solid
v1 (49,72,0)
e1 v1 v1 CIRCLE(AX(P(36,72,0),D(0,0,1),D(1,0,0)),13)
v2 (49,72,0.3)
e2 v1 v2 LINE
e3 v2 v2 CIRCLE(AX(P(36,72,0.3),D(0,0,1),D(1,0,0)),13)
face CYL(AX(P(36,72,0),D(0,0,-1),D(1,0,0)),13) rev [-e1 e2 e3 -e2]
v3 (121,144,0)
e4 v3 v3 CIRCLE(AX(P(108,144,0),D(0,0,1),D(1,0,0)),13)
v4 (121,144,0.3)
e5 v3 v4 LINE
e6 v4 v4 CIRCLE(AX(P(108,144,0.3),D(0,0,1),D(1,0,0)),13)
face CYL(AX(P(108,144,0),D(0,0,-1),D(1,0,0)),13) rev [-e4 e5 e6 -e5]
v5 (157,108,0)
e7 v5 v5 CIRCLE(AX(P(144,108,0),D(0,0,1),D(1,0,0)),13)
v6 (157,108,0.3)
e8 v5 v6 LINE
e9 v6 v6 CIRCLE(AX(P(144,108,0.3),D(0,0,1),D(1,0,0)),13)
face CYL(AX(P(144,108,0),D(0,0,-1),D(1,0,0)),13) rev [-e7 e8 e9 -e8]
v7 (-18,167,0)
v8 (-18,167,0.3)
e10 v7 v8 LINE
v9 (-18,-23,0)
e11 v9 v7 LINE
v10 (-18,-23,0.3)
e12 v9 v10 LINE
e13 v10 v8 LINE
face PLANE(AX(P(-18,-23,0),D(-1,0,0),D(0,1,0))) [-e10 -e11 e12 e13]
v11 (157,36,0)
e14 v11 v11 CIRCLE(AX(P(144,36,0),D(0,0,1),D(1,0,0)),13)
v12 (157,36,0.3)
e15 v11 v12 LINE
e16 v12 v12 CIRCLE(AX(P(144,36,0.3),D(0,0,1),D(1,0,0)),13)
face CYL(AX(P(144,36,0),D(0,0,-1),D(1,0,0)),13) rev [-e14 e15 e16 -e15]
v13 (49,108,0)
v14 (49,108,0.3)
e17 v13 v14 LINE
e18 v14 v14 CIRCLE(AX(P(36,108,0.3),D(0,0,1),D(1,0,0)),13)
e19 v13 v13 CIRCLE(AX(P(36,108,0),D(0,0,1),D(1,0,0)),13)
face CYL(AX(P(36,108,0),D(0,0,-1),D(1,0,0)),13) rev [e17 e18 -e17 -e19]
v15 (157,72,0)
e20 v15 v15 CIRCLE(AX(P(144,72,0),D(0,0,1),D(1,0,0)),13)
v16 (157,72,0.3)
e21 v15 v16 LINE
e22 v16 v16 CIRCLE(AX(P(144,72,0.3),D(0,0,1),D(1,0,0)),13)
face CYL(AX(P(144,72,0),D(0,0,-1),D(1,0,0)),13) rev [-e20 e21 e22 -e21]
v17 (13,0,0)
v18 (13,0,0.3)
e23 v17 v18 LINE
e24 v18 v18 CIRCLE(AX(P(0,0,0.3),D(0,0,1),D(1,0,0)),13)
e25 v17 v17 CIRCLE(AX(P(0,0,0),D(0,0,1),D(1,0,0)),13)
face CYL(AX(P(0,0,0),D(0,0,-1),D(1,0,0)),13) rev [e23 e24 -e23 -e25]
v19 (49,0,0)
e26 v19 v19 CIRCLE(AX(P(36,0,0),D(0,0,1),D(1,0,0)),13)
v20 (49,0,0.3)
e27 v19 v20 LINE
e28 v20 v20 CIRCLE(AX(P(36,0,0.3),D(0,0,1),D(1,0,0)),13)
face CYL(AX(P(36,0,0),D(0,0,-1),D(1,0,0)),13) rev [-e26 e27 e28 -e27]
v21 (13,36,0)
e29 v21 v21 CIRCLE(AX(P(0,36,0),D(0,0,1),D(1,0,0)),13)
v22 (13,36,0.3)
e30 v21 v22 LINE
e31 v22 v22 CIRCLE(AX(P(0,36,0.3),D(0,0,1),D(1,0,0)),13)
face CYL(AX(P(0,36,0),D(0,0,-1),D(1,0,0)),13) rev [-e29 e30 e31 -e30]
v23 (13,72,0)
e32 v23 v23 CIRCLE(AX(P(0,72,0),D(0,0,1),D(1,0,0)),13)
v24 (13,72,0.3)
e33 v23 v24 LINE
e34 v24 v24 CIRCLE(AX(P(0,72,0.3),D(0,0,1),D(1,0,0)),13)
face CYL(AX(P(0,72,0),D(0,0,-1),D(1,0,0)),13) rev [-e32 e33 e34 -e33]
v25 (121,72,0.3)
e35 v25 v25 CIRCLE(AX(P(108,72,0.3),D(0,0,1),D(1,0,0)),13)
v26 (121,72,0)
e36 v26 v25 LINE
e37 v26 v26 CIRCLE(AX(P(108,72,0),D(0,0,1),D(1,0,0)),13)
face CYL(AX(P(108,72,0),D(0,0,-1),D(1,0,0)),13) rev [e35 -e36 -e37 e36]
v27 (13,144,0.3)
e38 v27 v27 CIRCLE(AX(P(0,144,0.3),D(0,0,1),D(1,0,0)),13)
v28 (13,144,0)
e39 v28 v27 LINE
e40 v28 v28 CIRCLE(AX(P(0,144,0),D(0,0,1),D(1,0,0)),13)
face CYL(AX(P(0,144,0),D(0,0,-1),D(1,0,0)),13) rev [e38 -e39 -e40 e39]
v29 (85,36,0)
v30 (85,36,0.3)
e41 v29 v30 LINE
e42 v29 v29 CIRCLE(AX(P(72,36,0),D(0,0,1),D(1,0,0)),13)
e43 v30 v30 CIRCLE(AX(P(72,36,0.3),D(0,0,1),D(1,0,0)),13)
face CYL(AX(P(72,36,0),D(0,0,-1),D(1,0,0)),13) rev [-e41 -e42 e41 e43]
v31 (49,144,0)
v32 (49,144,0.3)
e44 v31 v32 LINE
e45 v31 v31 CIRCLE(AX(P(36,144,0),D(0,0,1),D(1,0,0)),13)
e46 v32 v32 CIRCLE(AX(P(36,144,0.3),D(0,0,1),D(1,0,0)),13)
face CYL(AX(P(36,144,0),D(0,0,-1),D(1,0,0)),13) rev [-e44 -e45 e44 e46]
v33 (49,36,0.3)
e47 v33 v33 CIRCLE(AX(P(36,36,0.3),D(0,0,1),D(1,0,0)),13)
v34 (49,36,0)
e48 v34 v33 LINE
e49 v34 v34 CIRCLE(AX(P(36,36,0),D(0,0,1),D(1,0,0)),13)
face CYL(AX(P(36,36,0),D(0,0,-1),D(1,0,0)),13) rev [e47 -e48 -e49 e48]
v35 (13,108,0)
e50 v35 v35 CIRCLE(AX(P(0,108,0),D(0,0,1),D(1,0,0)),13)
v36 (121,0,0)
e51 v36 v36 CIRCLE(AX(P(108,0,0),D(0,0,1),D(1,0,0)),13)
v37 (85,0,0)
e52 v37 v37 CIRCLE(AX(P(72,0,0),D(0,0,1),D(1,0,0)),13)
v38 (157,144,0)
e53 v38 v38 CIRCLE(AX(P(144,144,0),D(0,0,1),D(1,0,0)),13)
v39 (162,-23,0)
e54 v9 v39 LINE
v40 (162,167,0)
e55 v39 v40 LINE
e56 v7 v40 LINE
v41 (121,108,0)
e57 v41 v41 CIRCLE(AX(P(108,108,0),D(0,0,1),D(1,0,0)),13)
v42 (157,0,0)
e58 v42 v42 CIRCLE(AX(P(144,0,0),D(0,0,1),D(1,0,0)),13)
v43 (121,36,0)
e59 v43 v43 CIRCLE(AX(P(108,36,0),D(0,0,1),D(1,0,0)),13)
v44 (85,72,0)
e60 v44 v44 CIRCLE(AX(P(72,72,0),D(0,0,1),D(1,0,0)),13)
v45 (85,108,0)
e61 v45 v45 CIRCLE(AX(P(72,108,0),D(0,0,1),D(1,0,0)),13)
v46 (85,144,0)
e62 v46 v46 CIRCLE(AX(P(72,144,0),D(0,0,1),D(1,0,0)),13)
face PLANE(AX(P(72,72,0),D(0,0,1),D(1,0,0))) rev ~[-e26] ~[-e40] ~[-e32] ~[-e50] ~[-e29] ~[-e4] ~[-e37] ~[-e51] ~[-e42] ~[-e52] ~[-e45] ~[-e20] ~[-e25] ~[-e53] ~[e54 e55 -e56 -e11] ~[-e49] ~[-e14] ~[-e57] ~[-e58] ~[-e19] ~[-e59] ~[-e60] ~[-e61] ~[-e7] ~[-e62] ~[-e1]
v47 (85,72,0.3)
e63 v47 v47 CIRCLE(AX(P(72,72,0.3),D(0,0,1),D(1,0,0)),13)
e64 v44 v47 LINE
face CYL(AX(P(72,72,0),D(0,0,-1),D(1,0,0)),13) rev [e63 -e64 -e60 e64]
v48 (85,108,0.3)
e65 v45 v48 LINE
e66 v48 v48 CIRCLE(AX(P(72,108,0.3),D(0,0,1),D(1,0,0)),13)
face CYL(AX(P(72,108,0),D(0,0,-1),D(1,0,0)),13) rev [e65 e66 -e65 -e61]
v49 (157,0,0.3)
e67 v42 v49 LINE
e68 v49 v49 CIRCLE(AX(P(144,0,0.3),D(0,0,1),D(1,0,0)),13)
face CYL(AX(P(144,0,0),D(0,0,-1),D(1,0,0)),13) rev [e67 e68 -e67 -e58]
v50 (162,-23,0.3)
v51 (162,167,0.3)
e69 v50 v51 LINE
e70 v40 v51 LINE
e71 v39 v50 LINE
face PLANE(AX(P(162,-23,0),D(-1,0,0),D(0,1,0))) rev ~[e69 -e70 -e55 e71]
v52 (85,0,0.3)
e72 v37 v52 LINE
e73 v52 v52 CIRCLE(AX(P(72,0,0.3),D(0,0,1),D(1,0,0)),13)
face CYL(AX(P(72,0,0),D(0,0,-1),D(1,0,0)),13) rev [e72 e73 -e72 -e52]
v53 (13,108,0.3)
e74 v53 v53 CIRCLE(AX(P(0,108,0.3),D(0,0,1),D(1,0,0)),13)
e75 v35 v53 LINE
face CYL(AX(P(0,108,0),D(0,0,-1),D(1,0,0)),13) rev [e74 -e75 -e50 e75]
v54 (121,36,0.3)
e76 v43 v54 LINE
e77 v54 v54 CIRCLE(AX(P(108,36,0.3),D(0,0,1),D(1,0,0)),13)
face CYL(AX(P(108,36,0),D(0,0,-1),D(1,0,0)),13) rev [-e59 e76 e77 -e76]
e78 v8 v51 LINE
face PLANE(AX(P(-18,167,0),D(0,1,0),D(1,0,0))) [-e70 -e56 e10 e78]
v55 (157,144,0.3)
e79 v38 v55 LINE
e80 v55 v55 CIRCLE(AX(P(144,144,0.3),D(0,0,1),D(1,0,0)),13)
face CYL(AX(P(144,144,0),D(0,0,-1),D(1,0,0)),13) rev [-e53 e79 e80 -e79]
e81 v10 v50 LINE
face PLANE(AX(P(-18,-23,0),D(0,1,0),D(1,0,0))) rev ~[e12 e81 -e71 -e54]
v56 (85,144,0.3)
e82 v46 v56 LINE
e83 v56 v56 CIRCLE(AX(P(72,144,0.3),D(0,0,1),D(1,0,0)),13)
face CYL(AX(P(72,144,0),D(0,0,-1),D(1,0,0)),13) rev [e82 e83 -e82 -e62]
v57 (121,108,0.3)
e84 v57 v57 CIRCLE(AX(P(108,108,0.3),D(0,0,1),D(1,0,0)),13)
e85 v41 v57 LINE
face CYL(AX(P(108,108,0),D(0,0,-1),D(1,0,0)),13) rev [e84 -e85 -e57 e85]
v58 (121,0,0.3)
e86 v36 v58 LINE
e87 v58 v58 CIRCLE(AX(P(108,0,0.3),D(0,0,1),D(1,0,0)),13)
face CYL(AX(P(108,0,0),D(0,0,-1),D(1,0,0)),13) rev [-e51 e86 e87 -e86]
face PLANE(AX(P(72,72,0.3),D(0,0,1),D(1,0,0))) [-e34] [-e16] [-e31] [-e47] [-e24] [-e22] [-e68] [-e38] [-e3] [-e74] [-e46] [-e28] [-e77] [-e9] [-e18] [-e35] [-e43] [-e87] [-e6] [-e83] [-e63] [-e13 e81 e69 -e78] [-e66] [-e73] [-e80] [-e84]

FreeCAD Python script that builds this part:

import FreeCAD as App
import Part
import Sketcher

doc = App.newDocument("Part")
body = doc.addObject("PartDesign::Body", "Body")

# Sketch on XY plane
sketch1 = body.newObject("Sketcher::SketchObject", "Sketch")
sketch1.AttachmentSupport = (doc.getObject("XY_Plane"), [""])
sketch1.MapMode = "FlatFace"
sketch1.addGeometry([
    Part.LineSegment(App.Vector(-18, 167, 0), App.Vector(-18, -23, 0)),  # 0
    Part.LineSegment(App.Vector(-18, -23, 0), App.Vector(162, -23, 0)),  # 1
    Part.LineSegment(App.Vector(162, -23, 0), App.Vector(162, 167, 0)),  # 2
    Part.LineSegment(App.Vector(162, 167, 0), App.Vector(-18, 167, 0)),  # 3
    Part.Circle(App.Vector(0, 0, 0), App.Vector(0, 0, 1), 13),  # 4
    Part.Circle(App.Vector(36, 0, 0), App.Vector(0, 0, 1), 13),  # 5
    Part.Circle(App.Vector(0, 36, 0), App.Vector(0, 0, 1), 13),  # 6
    Part.Circle(App.Vector(36, 36, 0), App.Vector(0, 0, 1), 13),  # 7
    Part.Circle(App.Vector(72, 0, 0), App.Vector(0, 0, 1), 13),  # 8
    Part.Circle(App.Vector(108, 0, 0), App.Vector(0, 0, 1), 13),  # 9
    Part.Circle(App.Vector(144, 0, 0), App.Vector(0, 0, 1), 13),  # 10
    Part.Circle(App.Vector(72, 36, 0), App.Vector(0, 0, 1), 13),  # 11
    Part.Circle(App.Vector(108, 36, 0), App.Vector(0, 0, 1), 13),  # 12
    Part.Circle(App.Vector(144, 36, 0), App.Vector(0, 0, 1), 13),  # 13
    Part.Circle(App.Vector(0, 72, 0), App.Vector(0, 0, 1), 13),  # 14
    Part.Circle(App.Vector(0, 108, 0), App.Vector(0, 0, 1), 13),  # 15
    Part.Circle(App.Vector(36, 72, 0), App.Vector(0, 0, 1), 13),  # 16
    Part.Circle(App.Vector(36, 108, 0), App.Vector(0, 0, 1), 13),  # 17
    Part.Circle(App.Vector(0, 144, 0), App.Vector(0, 0, 1), 13),  # 18
    Part.Circle(App.Vector(36, 144, 0), App.Vector(0, 0, 1), 13),  # 19
    Part.Circle(App.Vector(72, 72, 0), App.Vector(0, 0, 1), 13),  # 20
    Part.Circle(App.Vector(108, 72, 0), App.Vector(0, 0, 1), 13),  # 21
    Part.Circle(App.Vector(72, 108, 0), App.Vector(0, 0, 1), 13),  # 22
    Part.Circle(App.Vector(108, 108, 0), App.Vector(0, 0, 1), 13),  # 23
    Part.Circle(App.Vector(144, 72, 0), App.Vector(0, 0, 1), 13),  # 24
    Part.Circle(App.Vector(144, 108, 0), App.Vector(0, 0, 1), 13),  # 25
    Part.Circle(App.Vector(72, 144, 0), App.Vector(0, 0, 1), 13),  # 26
    Part.Circle(App.Vector(108, 144, 0), App.Vector(0, 0, 1), 13),  # 27
    Part.Circle(App.Vector(144, 144, 0), App.Vector(0, 0, 1), 13),  # 28
], False)
sketch1.addConstraint([
    Sketcher.Constraint("Coincident", 0, 2, 1, 1),
    Sketcher.Constraint("Coincident", 1, 2, 2, 1),
    Sketcher.Constraint("Coincident", 2, 2, 3, 1),
    Sketcher.Constraint("Coincident", 3, 2, 0, 1),
    Sketcher.Constraint("Vertical", 0),
    Sketcher.Constraint("Horizontal", 1),
    Sketcher.Constraint("Vertical", 2),
    Sketcher.Constraint("Horizontal", 3),
    Sketcher.Constraint("Coincident", 4, 3, -1, 1),
    Sketcher.Constraint("Equal", 4, 5),
    Sketcher.Constraint("Equal", 5, 6),
    Sketcher.Constraint("Equal", 6, 7),
    Sketcher.Constraint("Equal", 7, 8),
    Sketcher.Constraint("Equal", 8, 9),
    Sketcher.Constraint("Equal", 9, 10),
    Sketcher.Constraint("Equal", 10, 11),
    Sketcher.Constraint("Equal", 11, 12),
    Sketcher.Constraint("Equal", 12, 13),
    Sketcher.Constraint("Equal", 13, 14),
    Sketcher.Constraint("Equal", 14, 15),
    Sketcher.Constraint("Equal", 15, 16),
    Sketcher.Constraint("Equal", 16, 17),
    Sketcher.Constraint("Equal", 17, 18),
    Sketcher.Constraint("Equal", 18, 19),
    Sketcher.Constraint("Equal", 19, 20),
    Sketcher.Constraint("Equal", 20, 21),
    Sketcher.Constraint("Equal", 21, 22),
    Sketcher.Constraint("Equal", 22, 23),
    Sketcher.Constraint("Equal", 23, 24),
    Sketcher.Constraint("Equal", 24, 25),
    Sketcher.Constraint("Equal", 25, 26),
    Sketcher.Constraint("Equal", 26, 27),
    Sketcher.Constraint("Equal", 27, 28),
    Sketcher.Constraint("PointOnObject", 5, 3, -1),
    Sketcher.Constraint("PointOnObject", 6, 3, -2),
    Sketcher.Constraint("PointOnObject", 8, 3, -1),
    Sketcher.Constraint("PointOnObject", 9, 3, -1),
    Sketcher.Constraint("PointOnObject", 10, 3, -1),
    Sketcher.Constraint("PointOnObject", 14, 3, -2),
    Sketcher.Constraint("PointOnObject", 15, 3, -2),
    Sketcher.Constraint("PointOnObject", 18, 3, -2),
    Sketcher.Constraint("Horizontal", 6, 3, 7, 3),
    Sketcher.Constraint("Horizontal", 7, 3, 11, 3),
    Sketcher.Constraint("Horizontal", 11, 3, 12, 3),
    Sketcher.Constraint("Horizontal", 12, 3, 13, 3),
    Sketcher.Constraint("Horizontal", 14, 3, 16, 3),
    Sketcher.Constraint("Horizontal", 15, 3, 17, 3),
    Sketcher.Constraint("Horizontal", 18, 3, 19, 3),
    Sketcher.Constraint("Horizontal", 16, 3, 20, 3),
    Sketcher.Constraint("Horizontal", 20, 3, 21, 3),
    Sketcher.Constraint("Horizontal", 17, 3, 22, 3),
    Sketcher.Constraint("Horizontal", 22, 3, 23, 3),
    Sketcher.Constraint("Horizontal", 21, 3, 24, 3),
    Sketcher.Constraint("Horizontal", 23, 3, 25, 3),
    Sketcher.Constraint("Horizontal", 19, 3, 26, 3),
    Sketcher.Constraint("Horizontal", 26, 3, 27, 3),
    Sketcher.Constraint("Horizontal", 27, 3, 28, 3),
    Sketcher.Constraint("Vertical", 5, 3, 7, 3),
    Sketcher.Constraint("Vertical", 8, 3, 11, 3),
    Sketcher.Constraint("Vertical", 9, 3, 12, 3),
    Sketcher.Constraint("Vertical", 10, 3, 13, 3),
    Sketcher.Constraint("Vertical", 7, 3, 16, 3),
    Sketcher.Constraint("Vertical", 16, 3, 17, 3),
    Sketcher.Constraint("Vertical", 17, 3, 19, 3),
    Sketcher.Constraint("Vertical", 11, 3, 20, 3),
    Sketcher.Constraint("Vertical", 12, 3, 21, 3),
    Sketcher.Constraint("Vertical", 20, 3, 22, 3),
    Sketcher.Constraint("Vertical", 21, 3, 23, 3),
    Sketcher.Constraint("Vertical", 13, 3, 24, 3),
    Sketcher.Constraint("Vertical", 24, 3, 25, 3),
    Sketcher.Constraint("Vertical", 22, 3, 26, 3),
    Sketcher.Constraint("Vertical", 23, 3, 27, 3),
    Sketcher.Constraint("Vertical", 25, 3, 28, 3),
    Sketcher.Constraint("Diameter", 4, 26.0),
    Sketcher.Constraint("DistanceX", 1, 1, 1, 2, 180.0),
    Sketcher.Constraint("DistanceY", 0, 2, 0, 1, 190.0),
    Sketcher.Constraint("DistanceX", -1, 1, 5, 3, 36.0),
    Sketcher.Constraint("DistanceY", -1, 1, 6, 3, 36.0),
    Sketcher.Constraint("DistanceX", -1, 1, 8, 3, 72.0),
    Sketcher.Constraint("DistanceX", -1, 1, 9, 3, 108.0),
    Sketcher.Constraint("DistanceX", -1, 1, 10, 3, 144.0),
    Sketcher.Constraint("DistanceY", -1, 1, 14, 3, 72.0),
    Sketcher.Constraint("DistanceY", -1, 1, 15, 3, 108.0),
    Sketcher.Constraint("DistanceY", -1, 1, 18, 3, 144.0),
    Sketcher.Constraint("DistanceX", 0, 2, -1, 1, 18.0),
    Sketcher.Constraint("DistanceY", 0, 2, -1, 1, 23.0),
])
pad1 = body.newObject("PartDesign::Pad", "Pad")
pad1.Profile = sketch1
pad1.Length = 0.3

doc.recompute()
